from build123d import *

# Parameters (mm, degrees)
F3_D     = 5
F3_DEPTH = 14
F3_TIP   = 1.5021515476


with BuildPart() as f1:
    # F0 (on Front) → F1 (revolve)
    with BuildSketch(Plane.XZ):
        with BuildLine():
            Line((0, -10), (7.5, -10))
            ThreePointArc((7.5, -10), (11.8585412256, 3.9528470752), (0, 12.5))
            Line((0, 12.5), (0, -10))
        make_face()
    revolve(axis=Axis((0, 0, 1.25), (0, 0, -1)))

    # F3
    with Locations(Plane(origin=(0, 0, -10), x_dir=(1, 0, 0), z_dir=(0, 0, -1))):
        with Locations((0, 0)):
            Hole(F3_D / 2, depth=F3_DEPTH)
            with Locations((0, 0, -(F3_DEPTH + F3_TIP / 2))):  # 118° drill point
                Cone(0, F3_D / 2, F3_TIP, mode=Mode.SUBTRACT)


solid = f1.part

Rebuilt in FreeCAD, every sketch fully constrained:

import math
import FreeCAD as App
import Part
import Sketcher
from FreeCAD import Vector
Q = App.Units.Quantity

doc = App.newDocument("Part")
params = doc.addObject("Spreadsheet::Sheet", "Params")
for row, (alias, value) in enumerate([
    ("sketch1_radius", "12.5 mm"),
    ("sketch1_width", "7.5 mm"),
    ("revolution_angle", "360 deg"),
    ("sketch2_diameter", "5 mm"),
    ("hole_diameter", "5 mm"),
    ("hole_depth", "14 mm"),
], start=1):
    params.set(f"A{row}", alias)
    params.set(f"B{row}", "=" + value)
    params.setAlias(f"B{row}", alias)

body = doc.addObject("PartDesign::Body", "Body")

sketch1 = doc.addObject("Sketcher::SketchObject", "Sketch")
body.addObject(sketch1)
sketch1.AttachmentSupport = (doc.XZ_Plane, [""])
sketch1.MapMode = "FlatFace"
sketch1.addGeometry(Part.LineSegment(Vector(0, -10, 0), Vector(8, -10, 0)), False)
sketch1.addGeometry(Part.ArcOfCircle(Part.Circle(Vector(0, 0, 0), Vector(0, 0, 1), 12), math.radians(-53), math.radians(90)), False)
sketch1.addGeometry(Part.LineSegment(Vector(0, 12, 0), Vector(0, -10, 0)), False)
sketch1.addConstraint(Sketcher.Constraint("Coincident", 0, 2, 1, 1))
sketch1.addConstraint(Sketcher.Constraint("Coincident", 1, 2, 2, 1))
sketch1.addConstraint(Sketcher.Constraint("Coincident", 2, 2, 0, 1))
sketch1.addConstraint(Sketcher.Constraint("Horizontal", 0))
sketch1.addConstraint(Sketcher.Constraint("Vertical", 2))
sketch1.addConstraint(Sketcher.Constraint("Coincident", 1, 3, -1, 1))
sketch1.addConstraint(Sketcher.Constraint("PointOnObject", 1, 2, -2))
sketch1.addConstraint(Sketcher.Constraint("Radius", 1, Q("12.5 mm")))
sketch1.addConstraint(Sketcher.Constraint("DistanceX", 0, 1, 0, 2, Q("7.5 mm")))
sketch1.setExpression("Constraints[7]", "Params.sketch1_radius")
sketch1.setExpression("Constraints[8]", "Params.sketch1_width")
revolution = doc.addObject("PartDesign::Revolution", "Revolution")
body.addObject(revolution)
revolution.Profile = sketch1
revolution.ReferenceAxis = (sketch1, ["V_Axis"])
revolution.setExpression("Angle", "Params.revolution_angle")

sketch2 = doc.addObject("Sketcher::SketchObject", "Sketch001")
body.addObject(sketch2)
sketch2.AttachmentSupport = (doc.XY_Plane, [""])
sketch2.MapMode = "FlatFace"
sketch2.AttachmentOffset = App.Placement(Vector(0, 0, -10), App.Rotation())
sketch2.addGeometry(Part.Circle(Vector(0, 0, 0), Vector(0, 0, 1), 2.5), False)
sketch2.addConstraint(Sketcher.Constraint("Coincident", 0, 3, -1, 1))
sketch2.addConstraint(Sketcher.Constraint("Diameter", 0, Q("5 mm")))
sketch2.setExpression("Constraints[1]", "Params.sketch2_diameter")
doc.recompute()
hole = doc.addObject("PartDesign::Hole", "Hole")
body.addObject(hole)
hole.Profile = sketch2
hole.ThreadType = "None"
hole.setExpression("Diameter", "Params.hole_diameter")
hole.DepthType = "Dimension"
hole.setExpression("Depth", "Params.hole_depth")
hole.DrillPoint = "Angled"
hole.DrillPointAngle = 118
hole.Reversed = True

doc.recompute()
